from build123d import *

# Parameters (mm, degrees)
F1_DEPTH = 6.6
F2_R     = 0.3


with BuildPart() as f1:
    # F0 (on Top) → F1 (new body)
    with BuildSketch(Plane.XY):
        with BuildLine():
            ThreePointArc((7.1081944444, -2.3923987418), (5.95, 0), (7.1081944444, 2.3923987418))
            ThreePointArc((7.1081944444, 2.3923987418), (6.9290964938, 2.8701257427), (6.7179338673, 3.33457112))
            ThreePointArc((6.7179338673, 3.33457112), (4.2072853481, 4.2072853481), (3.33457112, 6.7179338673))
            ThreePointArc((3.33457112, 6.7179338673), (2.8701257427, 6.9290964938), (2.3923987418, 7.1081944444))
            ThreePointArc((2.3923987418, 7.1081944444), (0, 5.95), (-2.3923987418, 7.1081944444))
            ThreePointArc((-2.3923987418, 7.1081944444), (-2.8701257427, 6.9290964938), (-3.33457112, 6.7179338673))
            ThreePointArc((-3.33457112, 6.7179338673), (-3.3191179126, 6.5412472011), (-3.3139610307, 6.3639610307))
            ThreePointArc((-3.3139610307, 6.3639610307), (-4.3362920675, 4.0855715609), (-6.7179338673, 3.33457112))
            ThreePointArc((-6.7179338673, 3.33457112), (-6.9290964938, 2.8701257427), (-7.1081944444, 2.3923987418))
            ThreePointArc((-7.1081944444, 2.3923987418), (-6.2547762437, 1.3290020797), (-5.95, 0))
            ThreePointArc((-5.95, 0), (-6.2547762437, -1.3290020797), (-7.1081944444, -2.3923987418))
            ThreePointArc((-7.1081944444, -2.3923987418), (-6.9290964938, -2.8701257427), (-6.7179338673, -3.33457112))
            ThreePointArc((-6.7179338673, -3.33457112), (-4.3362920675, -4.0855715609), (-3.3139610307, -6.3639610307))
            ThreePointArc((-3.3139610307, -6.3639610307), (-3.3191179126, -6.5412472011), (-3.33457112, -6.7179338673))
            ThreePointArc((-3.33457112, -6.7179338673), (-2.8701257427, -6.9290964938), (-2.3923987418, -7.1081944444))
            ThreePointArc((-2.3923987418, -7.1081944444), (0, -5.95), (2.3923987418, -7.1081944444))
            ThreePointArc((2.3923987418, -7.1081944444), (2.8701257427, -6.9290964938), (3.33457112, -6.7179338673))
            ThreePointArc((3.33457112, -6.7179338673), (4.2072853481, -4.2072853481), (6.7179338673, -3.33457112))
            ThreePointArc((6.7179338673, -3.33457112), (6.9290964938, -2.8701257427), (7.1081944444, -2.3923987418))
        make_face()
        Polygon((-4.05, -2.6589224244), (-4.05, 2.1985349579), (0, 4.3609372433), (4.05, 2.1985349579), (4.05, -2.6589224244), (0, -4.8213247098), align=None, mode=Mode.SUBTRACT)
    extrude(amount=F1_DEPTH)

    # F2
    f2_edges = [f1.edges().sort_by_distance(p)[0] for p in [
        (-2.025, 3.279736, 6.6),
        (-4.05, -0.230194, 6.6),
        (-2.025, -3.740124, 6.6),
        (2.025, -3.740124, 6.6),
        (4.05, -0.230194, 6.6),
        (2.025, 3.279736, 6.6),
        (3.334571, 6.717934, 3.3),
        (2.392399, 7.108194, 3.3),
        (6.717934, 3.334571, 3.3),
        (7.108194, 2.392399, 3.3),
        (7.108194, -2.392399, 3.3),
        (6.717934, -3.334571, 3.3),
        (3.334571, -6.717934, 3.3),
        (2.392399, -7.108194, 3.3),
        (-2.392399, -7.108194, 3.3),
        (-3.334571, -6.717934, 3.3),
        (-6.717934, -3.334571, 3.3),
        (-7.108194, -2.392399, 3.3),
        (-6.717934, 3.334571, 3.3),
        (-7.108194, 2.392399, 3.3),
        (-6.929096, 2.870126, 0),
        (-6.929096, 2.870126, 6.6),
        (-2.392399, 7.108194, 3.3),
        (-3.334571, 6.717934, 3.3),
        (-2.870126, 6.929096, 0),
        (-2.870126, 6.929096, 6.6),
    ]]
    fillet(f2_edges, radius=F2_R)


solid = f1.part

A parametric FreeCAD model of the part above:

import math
import FreeCAD as App
import Part
import Sketcher


def edges_at(feature, points):
    """Names of the edges that pass closest to the given points."""
    edges = feature.Shape.Edges
    near = lambda p: min(range(len(edges)), key=lambda i: edges[i].distToShape(Part.Vertex(*p))[0])
    return sorted({f"Edge{near(p) + 1}" for p in points})

doc = App.newDocument("Part")
params = doc.addObject("Spreadsheet::Sheet", "Params")
for row, (alias, value) in enumerate([
    ("sketch1_radius", "7.5 mm"),
    ("sketch1_radius2", "3.05 mm"),
    ("pad1_length", "6.6 mm"),
    ("fillet_radius", "0.3 mm"),
], start=1):
    params.set(f"A{row}", alias)
    params.set(f"B{row}", "=" + value)
    params.setAlias(f"B{row}", alias)

body = doc.addObject("PartDesign::Body", "Body")

sketch1 = doc.addObject("Sketcher::SketchObject", "Sketch")
body.addObject(sketch1)
sketch1.AttachmentSupport = (doc.XY_Plane, [""])
sketch1.MapMode = "FlatFace"
sketch1.addGeometry(Part.ArcOfCircle(Part.Circle(App.Vector(9, 0, 0), App.Vector(0, 0, 1), 3.05), math.radians(128), math.radians(232)), False)
sketch1.addGeometry(Part.ArcOfCircle(Part.Circle(App.Vector(0, 0, 0), App.Vector(0, 0, 1), 7.5), math.radians(18.6), math.radians(26.4)), False)
sketch1.addGeometry(Part.ArcOfCircle(Part.Circle(App.Vector(6.36, 6.36, 0), App.Vector(0, 0, 1), 3.05), math.radians(173), math.radians(277)), False)
sketch1.addGeometry(Part.ArcOfCircle(Part.Circle(App.Vector(0, 0, 0), App.Vector(0, 0, 1), 7.5), math.radians(63.6), math.radians(71.4)), False)
sketch1.addGeometry(Part.ArcOfCircle(Part.Circle(App.Vector(0, 9, 0), App.Vector(0, 0, 1), 3.05), math.radians(-142), math.radians(-38)), False)
sketch1.addGeometry(Part.ArcOfCircle(Part.Circle(App.Vector(0, 0, 0), App.Vector(0, 0, 1), 7.5), math.radians(108.6), math.radians(116.4)), False)
sketch1.addGeometry(Part.ArcOfCircle(Part.Circle(App.Vector(-6.36, 6.36, 0), App.Vector(0, 0, 1), 3.05), math.radians(0), math.radians(6.66)), False)
sketch1.addGeometry(Part.ArcOfCircle(Part.Circle(App.Vector(-6.36, 6.36, 0), App.Vector(0, 0, 1), 3.05), math.radians(-97), math.radians(0)), False)
sketch1.addGeometry(Part.ArcOfCircle(Part.Circle(App.Vector(0, 0, 0), App.Vector(0, 0, 1), 7.5), math.radians(153.6), math.radians(161.4)), False)
sketch1.addGeometry(Part.ArcOfCircle(Part.Circle(App.Vector(-9, 0, 0), App.Vector(0, 0, 1), 3.05), math.radians(0), math.radians(52)), False)
sketch1.addGeometry(Part.ArcOfCircle(Part.Circle(App.Vector(-9, 0, 0), App.Vector(0, 0, 1), 3.05), math.radians(-52), math.radians(0)), False)
sketch1.addGeometry(Part.ArcOfCircle(Part.Circle(App.Vector(0, 0, 0), App.Vector(0, 0, 1), 7.5), math.radians(-161.4), math.radians(-153.6)), False)
sketch1.addGeometry(Part.ArcOfCircle(Part.Circle(App.Vector(-6.36, -6.36, 0), App.Vector(0, 0, 1), 3.05), math.radians(0), math.radians(97)), False)
sketch1.addGeometry(Part.ArcOfCircle(Part.Circle(App.Vector(-6.36, -6.36, 0), App.Vector(0, 0, 1), 3.05), math.radians(-6.66), math.radians(0)), False)
sketch1.addGeometry(Part.ArcOfCircle(Part.Circle(App.Vector(0, 0, 0), App.Vector(0, 0, 1), 7.5), math.radians(-116.4), math.radians(-108.6)), False)
sketch1.addGeometry(Part.ArcOfCircle(Part.Circle(App.Vector(0, -9, 0), App.Vector(0, 0, 1), 3.05), math.radians(38), math.radians(142)), False)
sketch1.addGeometry(Part.ArcOfCircle(Part.Circle(App.Vector(0, 0, 0), App.Vector(0, 0, 1), 7.5), math.radians(-71.4), math.radians(-63.6)), False)
sketch1.addGeometry(Part.ArcOfCircle(Part.Circle(App.Vector(6.36, -6.36, 0), App.Vector(0, 0, 1), 3.05), math.radians(83), math.radians(187)), False)
sketch1.addGeometry(Part.ArcOfCircle(Part.Circle(App.Vector(0, 0, 0), App.Vector(0, 0, 1), 7.5), math.radians(-26.4), math.radians(-18.6)), False)
sketch1.addGeometry(Part.LineSegment(App.Vector(0, -4.82, 0), App.Vector(-4.05, -2.66, 0)), False)
sketch1.addGeometry(Part.LineSegment(App.Vector(-4.05, -2.66, 0), App.Vector(-4.05, 2.2, 0)), False)
sketch1.addGeometry(Part.LineSegment(App.Vector(-4.05, 2.2, 0), App.Vector(0, 4.36, 0)), False)
sketch1.addGeometry(Part.LineSegment(App.Vector(0, 4.36, 0), App.Vector(4.05, 2.2, 0)), False)
sketch1.addGeometry(Part.LineSegment(App.Vector(4.05, 2.2, 0), App.Vector(4.05, -2.66, 0)), False)
sketch1.addGeometry(Part.LineSegment(App.Vector(4.05, -2.66, 0), App.Vector(0, -4.82, 0)), False)
sketch1.addConstraint(Sketcher.Constraint("Coincident", 0, 1, 1, 1))
sketch1.addConstraint(Sketcher.Constraint("Coincident", 1, 2, 2, 2))
sketch1.addConstraint(Sketcher.Constraint("Coincident", 2, 1, 3, 1))
sketch1.addConstraint(Sketcher.Constraint("Coincident", 3, 2, 4, 2))
sketch1.addConstraint(Sketcher.Constraint("Coincident", 4, 1, 5, 1))
sketch1.addConstraint(Sketcher.Constraint("Coincident", 5, 2, 6, 2))
sketch1.addConstraint(Sketcher.Constraint("Tangent", 6, 1, 7, 2))
sketch1.addConstraint(Sketcher.Constraint("Coincident", 7, 1, 8, 1))
sketch1.addConstraint(Sketcher.Constraint("Coincident", 8, 2, 9, 2))
sketch1.addConstraint(Sketcher.Constraint("Tangent", 9, 1, 10, 2))
sketch1.addConstraint(Sketcher.Constraint("Coincident", 10, 1, 11, 1))
sketch1.addConstraint(Sketcher.Constraint("Coincident", 11, 2, 12, 2))
sketch1.addConstraint(Sketcher.Constraint("Tangent", 12, 1, 13, 2))
sketch1.addConstraint(Sketcher.Constraint("Coincident", 13, 1, 14, 1))
sketch1.addConstraint(Sketcher.Constraint("Coincident", 14, 2, 15, 2))
sketch1.addConstraint(Sketcher.Constraint("Coincident", 15, 1, 16, 1))
sketch1.addConstraint(Sketcher.Constraint("Coincident", 16, 2, 17, 2))
sketch1.addConstraint(Sketcher.Constraint("Coincident", 17, 1, 18, 1))
sketch1.addConstraint(Sketcher.Constraint("Coincident", 18, 2, 0, 2))
sketch1.addConstraint(Sketcher.Constraint("Coincident", 19, 2, 20, 1))
sketch1.addConstraint(Sketcher.Constraint("Coincident", 20, 2, 21, 1))
sketch1.addConstraint(Sketcher.Constraint("Coincident", 21, 2, 22, 1))
sketch1.addConstraint(Sketcher.Constraint("Coincident", 22, 2, 23, 1))
sketch1.addConstraint(Sketcher.Constraint("Coincident", 23, 2, 24, 1))
sketch1.addConstraint(Sketcher.Constraint("Coincident", 24, 2, 19, 1))
sketch1.addConstraint(Sketcher.Constraint("Vertical", 20))
sketch1.addConstraint(Sketcher.Constraint("Vertical", 23))
sketch1.addConstraint(Sketcher.Constraint("Coincident", 1, 3, -1, 1))
sketch1.addConstraint(Sketcher.Constraint("Coincident", 3, 3, -1, 1))
sketch1.addConstraint(Sketcher.Constraint("Coincident", 5, 3, -1, 1))
sketch1.addConstraint(Sketcher.Constraint("Coincident", 8, 3, -1, 1))
sketch1.addConstraint(Sketcher.Constraint("Coincident", 11, 3, -1, 1))
sketch1.addConstraint(Sketcher.Constraint("Coincident", 14, 3, -1, 1))
sketch1.addConstraint(Sketcher.Constraint("Coincident", 16, 3, -1, 1))
sketch1.addConstraint(Sketcher.Constraint("Coincident", 18, 3, -1, 1))
sketch1.addConstraint(Sketcher.Constraint("Equal", 0, 2))
sketch1.addConstraint(Sketcher.Constraint("Equal", 1, 3))
sketch1.addConstraint(Sketcher.Constraint("Equal", 2, 4))
sketch1.addConstraint(Sketcher.Constraint("Equal", 3, 5))
sketch1.addConstraint(Sketcher.Constraint("Equal", 4, 6))
sketch1.addConstraint(Sketcher.Constraint("Equal", 6, 7))
sketch1.addConstraint(Sketcher.Constraint("Equal", 5, 8))
sketch1.addConstraint(Sketcher.Constraint("Equal", 7, 9))
sketch1.addConstraint(Sketcher.Constraint("Equal", 9, 10))
sketch1.addConstraint(Sketcher.Constraint("Equal", 8, 11))
sketch1.addConstraint(Sketcher.Constraint("Equal", 10, 12))
sketch1.addConstraint(Sketcher.Constraint("Equal", 12, 13))
sketch1.addConstraint(Sketcher.Constraint("Equal", 11, 14))
sketch1.addConstraint(Sketcher.Constraint("Equal", 13, 15))
sketch1.addConstraint(Sketcher.Constraint("Equal", 14, 16))
sketch1.addConstraint(Sketcher.Constraint("Equal", 15, 17))
sketch1.addConstraint(Sketcher.Constraint("Equal", 16, 18))
sketch1.addConstraint(Sketcher.Constraint("Symmetric", 0, 3, 9, 3, -1, 1))
sketch1.addConstraint(Sketcher.Constraint("Symmetric", 2, 3, 12, 3, -1, 1))
sketch1.addConstraint(Sketcher.Constraint("Symmetric", 4, 3, 15, 3, -1, 1))
sketch1.addConstraint(Sketcher.Constraint("Symmetric", 6, 3, 17, 3, -1, 1))
sketch1.addConstraint(Sketcher.Constraint("Symmetric", 2, 3, 6, 3, -2))
sketch1.addConstraint(Sketcher.Constraint("Symmetric", 20, 2, 22, 2, -2))
sketch1.addConstraint(Sketcher.Constraint("PointOnObject", 0, 3, -1))
sketch1.addConstraint(Sketcher.Constraint("PointOnObject", 4, 3, -2))
sketch1.addConstraint(Sketcher.Constraint("PointOnObject", 9, 1, -1))
sketch1.addConstraint(Sketcher.Constraint("PointOnObject", 21, 2, -2))
sketch1.addConstraint(Sketcher.Constraint("PointOnObject", 24, 2, -2))
sketch1.addConstraint(Sketcher.Constraint("Parallel", 19, 22))
sketch1.addConstraint(Sketcher.Constraint("Parallel", 21, 24))
sketch1.addConstraint(Sketcher.Constraint("Horizontal", 7, 3, 6, 1))
sketch1.addConstraint(Sketcher.Constraint("Horizontal", 17, 3, 12, 1))
sketch1.addConstraint(Sketcher.Constraint("Radius", 1, 7.5))
sketch1.addConstraint(Sketcher.Constraint("Radius", 0, 3.05))
sketch1.addConstraint(Sketcher.Constraint("DistanceX", -1, 1, 0, 3, 9.0))
sketch1.addConstraint(Sketcher.Constraint("DistanceY", -1, 1, 4, 3, 9.0))
sketch1.addConstraint(Sketcher.Constraint("DistanceX", 9, 1, 19, 2, 1.9))
sketch1.addConstraint(Sketcher.Constraint("DistanceY", 20, 2, 5, 2, 4.519399))
sketch1.addConstraint(Sketcher.Constraint("Distance", 19, 4.591131))
sketch1.addConstraint(Sketcher.Constraint("DistanceY", 20, 1, 20, 2, 4.857457))
sketch1.addConstraint(Sketcher.Constraint("DistanceX", -1, 1, 2, 3, 6.363961))
sketch1.addConstraint(Sketcher.Constraint("DistanceY", -1, 1, 2, 3, 6.363961))
sketch1.setExpression("Constraints[67]", "Params.sketch1_radius")
sketch1.setExpression("Constraints[68]", "Params.sketch1_radius2")
pad1 = doc.addObject("PartDesign::Pad", "Pad")
body.addObject(pad1)
pad1.Profile = sketch1
pad1.setExpression("Length", "Params.pad1_length")
doc.recompute()

fillet = doc.addObject("PartDesign::Fillet", "Fillet")
body.addObject(fillet)
fillet.Base = (pad1, edges_at(pad1, [
    (-2.025, 3.28, 6.6),
    (-4.05, -0.23, 6.6),
    (-2.025, -3.74, 6.6),
    (2.025, -3.74, 6.6),
    (4.05, -0.23, 6.6),
    (2.025, 3.28, 6.6),
    (3.335, 6.718, 3.3),
    (2.392, 7.108, 3.3),
    (6.718, 3.335, 3.3),
    (7.108, 2.392, 3.3),
    (7.108, -2.392, 3.3),
    (6.718, -3.335, 3.3),
    (3.335, -6.718, 3.3),
    (2.392, -7.108, 3.3),
    (-2.392, -7.108, 3.3),
    (-3.335, -6.718, 3.3),
    (-6.718, -3.335, 3.3),
    (-7.108, -2.392, 3.3),
    (-6.718, 3.335, 3.3),
    (-7.108, 2.392, 3.3),
    (-6.929, 2.87, 0),
    (-6.929, 2.87, 6.6),
    (-2.392, 7.108, 3.3),
    (-3.335, 6.718, 3.3),
    (-2.87, 6.929, 0),
    (-2.87, 6.929, 6.6),
]))
fillet.setExpression("Radius", "Params.fillet_radius")

doc.recompute()
